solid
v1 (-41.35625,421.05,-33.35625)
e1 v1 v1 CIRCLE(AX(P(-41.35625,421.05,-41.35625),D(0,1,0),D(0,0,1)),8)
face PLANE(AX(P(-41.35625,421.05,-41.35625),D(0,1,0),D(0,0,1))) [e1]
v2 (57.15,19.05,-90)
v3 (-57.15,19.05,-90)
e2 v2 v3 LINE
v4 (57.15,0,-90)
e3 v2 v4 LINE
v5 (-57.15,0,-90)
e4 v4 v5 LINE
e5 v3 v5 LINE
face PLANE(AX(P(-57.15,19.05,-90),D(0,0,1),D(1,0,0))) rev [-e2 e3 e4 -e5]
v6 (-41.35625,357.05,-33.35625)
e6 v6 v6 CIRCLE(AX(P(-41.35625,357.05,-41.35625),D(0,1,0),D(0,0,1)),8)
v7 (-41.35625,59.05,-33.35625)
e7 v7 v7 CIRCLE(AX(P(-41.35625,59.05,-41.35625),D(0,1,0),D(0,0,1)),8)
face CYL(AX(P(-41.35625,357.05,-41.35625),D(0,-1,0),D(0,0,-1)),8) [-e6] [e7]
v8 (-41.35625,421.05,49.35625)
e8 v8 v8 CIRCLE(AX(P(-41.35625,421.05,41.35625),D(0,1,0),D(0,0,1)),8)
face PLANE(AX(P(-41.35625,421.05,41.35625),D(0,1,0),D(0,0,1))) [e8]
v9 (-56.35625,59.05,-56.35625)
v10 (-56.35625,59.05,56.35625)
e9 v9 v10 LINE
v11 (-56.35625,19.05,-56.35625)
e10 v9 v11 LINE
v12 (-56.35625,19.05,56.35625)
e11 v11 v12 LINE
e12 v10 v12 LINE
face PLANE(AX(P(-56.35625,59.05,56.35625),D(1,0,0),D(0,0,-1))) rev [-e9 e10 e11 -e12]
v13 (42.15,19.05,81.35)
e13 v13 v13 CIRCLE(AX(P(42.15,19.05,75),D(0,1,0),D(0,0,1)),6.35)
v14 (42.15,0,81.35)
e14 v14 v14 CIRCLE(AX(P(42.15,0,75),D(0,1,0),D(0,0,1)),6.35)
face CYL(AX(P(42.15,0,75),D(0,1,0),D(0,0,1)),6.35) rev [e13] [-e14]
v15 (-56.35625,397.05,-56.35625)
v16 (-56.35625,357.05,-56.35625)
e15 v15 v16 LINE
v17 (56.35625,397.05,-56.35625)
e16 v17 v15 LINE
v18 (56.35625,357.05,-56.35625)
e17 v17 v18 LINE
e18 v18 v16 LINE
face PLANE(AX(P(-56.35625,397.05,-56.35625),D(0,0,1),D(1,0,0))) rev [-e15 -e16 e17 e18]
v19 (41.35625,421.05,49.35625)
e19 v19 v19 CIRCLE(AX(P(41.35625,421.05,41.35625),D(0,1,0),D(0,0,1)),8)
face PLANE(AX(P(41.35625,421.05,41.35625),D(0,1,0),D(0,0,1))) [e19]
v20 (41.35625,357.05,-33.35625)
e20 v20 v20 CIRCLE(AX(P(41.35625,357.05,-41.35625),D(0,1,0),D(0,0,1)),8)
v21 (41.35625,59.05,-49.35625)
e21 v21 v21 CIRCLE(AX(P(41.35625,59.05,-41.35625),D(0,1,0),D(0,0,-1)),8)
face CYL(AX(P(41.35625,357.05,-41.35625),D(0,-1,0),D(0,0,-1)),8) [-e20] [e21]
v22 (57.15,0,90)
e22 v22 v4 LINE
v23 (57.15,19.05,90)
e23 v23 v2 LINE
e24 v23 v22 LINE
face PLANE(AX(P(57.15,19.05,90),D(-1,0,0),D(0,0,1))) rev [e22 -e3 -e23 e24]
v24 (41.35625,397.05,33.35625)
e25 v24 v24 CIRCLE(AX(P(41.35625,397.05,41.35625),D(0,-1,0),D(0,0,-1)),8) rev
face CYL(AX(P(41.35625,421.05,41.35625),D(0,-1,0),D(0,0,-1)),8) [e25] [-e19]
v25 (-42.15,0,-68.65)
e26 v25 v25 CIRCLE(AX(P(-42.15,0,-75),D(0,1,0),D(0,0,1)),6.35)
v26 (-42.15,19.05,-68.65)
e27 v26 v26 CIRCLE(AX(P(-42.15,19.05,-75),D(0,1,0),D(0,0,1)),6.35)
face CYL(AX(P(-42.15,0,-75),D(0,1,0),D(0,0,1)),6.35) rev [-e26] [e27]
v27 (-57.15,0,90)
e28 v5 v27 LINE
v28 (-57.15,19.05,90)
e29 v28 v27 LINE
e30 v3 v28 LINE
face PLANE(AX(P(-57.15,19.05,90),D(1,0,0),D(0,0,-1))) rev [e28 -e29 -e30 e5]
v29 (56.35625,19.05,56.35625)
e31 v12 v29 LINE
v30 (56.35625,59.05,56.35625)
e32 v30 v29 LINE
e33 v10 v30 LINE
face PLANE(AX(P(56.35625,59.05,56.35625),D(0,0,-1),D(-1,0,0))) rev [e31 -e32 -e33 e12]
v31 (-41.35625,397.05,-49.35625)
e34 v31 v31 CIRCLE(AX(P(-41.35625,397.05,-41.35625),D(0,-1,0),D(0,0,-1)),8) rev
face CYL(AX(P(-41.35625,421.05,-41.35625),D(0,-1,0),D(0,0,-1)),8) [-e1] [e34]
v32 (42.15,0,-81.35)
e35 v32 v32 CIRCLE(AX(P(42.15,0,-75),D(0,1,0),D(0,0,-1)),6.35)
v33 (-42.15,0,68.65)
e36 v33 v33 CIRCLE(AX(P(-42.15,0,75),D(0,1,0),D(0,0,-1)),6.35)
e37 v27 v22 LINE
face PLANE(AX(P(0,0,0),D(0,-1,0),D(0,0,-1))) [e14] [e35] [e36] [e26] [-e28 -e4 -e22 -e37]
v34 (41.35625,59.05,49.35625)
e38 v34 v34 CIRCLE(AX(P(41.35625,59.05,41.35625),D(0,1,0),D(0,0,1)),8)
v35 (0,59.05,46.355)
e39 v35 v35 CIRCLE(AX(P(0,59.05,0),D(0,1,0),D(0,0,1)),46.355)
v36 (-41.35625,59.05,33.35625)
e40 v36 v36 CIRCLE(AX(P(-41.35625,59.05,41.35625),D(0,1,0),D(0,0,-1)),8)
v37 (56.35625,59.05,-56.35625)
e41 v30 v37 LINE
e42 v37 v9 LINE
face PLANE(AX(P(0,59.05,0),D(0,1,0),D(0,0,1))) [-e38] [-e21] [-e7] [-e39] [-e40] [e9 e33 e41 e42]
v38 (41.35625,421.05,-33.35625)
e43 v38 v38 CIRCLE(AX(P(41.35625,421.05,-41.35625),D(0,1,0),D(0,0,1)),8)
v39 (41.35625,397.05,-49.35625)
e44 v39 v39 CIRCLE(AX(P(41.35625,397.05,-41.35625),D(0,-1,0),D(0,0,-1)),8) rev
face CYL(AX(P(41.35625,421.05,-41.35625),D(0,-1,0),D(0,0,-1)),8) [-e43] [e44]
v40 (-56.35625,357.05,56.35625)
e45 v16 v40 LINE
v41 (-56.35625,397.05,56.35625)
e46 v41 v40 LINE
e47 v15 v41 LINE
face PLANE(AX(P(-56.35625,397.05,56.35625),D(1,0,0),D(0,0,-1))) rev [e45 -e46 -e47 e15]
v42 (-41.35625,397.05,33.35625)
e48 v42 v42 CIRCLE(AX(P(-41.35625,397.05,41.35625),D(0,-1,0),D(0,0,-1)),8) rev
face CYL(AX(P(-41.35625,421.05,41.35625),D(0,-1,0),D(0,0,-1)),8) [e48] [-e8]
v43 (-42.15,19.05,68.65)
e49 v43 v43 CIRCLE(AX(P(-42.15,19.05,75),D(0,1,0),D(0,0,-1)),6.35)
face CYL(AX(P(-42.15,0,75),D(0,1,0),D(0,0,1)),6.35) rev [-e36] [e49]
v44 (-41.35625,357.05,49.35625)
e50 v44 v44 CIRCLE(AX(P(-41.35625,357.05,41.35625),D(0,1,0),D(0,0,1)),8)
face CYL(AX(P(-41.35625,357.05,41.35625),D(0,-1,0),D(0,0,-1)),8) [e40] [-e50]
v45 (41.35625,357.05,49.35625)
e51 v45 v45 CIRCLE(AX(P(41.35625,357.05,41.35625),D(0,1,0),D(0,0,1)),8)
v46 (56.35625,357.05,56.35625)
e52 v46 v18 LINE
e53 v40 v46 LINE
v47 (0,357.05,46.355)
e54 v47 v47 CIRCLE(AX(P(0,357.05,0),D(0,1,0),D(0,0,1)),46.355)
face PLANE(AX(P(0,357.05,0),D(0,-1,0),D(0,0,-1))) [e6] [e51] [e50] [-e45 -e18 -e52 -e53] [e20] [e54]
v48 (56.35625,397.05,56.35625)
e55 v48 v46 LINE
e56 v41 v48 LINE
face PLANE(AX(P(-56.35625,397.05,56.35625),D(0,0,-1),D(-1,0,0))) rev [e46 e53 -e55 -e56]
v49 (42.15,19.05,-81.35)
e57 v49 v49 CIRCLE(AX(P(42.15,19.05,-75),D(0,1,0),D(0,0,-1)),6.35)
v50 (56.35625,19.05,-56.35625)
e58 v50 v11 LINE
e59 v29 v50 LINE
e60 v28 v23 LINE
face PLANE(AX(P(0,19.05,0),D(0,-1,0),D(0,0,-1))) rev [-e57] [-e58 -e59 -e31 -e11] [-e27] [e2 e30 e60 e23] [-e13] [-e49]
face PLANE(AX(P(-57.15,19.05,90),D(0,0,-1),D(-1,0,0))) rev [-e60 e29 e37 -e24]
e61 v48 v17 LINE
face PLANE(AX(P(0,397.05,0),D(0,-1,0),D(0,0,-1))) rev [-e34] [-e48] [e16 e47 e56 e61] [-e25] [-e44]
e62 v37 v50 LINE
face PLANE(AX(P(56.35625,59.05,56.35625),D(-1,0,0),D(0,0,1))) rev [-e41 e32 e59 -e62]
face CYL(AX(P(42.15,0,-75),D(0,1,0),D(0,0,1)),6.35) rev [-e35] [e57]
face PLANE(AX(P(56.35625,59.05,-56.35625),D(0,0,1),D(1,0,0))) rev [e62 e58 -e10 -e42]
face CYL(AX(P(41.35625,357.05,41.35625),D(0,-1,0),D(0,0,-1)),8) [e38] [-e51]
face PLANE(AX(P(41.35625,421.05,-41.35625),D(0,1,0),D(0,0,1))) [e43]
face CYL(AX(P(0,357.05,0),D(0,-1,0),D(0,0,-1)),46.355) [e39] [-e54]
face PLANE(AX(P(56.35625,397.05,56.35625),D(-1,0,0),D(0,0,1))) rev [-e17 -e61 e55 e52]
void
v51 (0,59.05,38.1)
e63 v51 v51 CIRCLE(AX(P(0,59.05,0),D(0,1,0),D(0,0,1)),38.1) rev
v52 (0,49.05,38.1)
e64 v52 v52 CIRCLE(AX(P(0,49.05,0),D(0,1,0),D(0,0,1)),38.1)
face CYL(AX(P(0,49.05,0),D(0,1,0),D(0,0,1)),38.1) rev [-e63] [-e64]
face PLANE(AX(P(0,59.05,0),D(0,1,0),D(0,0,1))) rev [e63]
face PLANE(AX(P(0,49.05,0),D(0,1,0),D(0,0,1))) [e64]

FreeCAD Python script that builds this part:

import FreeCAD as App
import Part
import Sketcher

V = App.Vector

doc = App.newDocument("Part")
params = doc.addObject("Spreadsheet::Sheet", "Params")
for row, (alias, value) in enumerate([
    ("sketch1_height", "180 mm"),
    ("sketch1_width", "114.3 mm"),
    ("pad1_length", "19.05 mm"),
    ("sketch2_diameter", "12.7 mm"),
    ("pocket1_length", "19.05 mm"),
    ("pad2_length", "40 mm"),
    ("sketch4_diameter", "16 mm"),
    ("pocket2_length", "40 mm"),
    ("sketch5_diameter", "16 mm"),
    ("pad3_length", "338 mm"),
    ("sketch6_diameter", "76.2 mm"),
    ("pocket3_length", "10 mm"),
    ("sketch7_diameter", "92.71 mm"),
    ("pad4_length", "298 mm"),
    ("pad5_length", "40 mm"),
    ("sketch9_diameter", "16 mm"),
    ("pad6_length", "24 mm"),
], start=1):
    params.set(f"A{row}", alias)
    params.set(f"B{row}", "=" + value)
    params.setAlias(f"B{row}", alias)

body = doc.addObject("PartDesign::Body", "Body")

# Sketch on XZ plane
sketch1 = body.newObject("Sketcher::SketchObject", "Sketch")
sketch1.AttachmentSupport = (doc.getObject("XZ_Plane"), [""])
sketch1.MapMode = "FlatFace"
sketch1.addGeometry([
    Part.LineSegment(V(-57, -90, 0), V(-57, 90, 0)),
    Part.LineSegment(V(-57, 90, 0), V(57, 90, 0)),
    Part.LineSegment(V(57, 90, 0), V(57, -90, 0)),
    Part.LineSegment(V(57, -90, 0), V(-57, -90, 0)),
], False)
sketch1.addConstraint([
    Sketcher.Constraint("Coincident", 0, 2, 1, 1),
    Sketcher.Constraint("Coincident", 1, 2, 2, 1),
    Sketcher.Constraint("Coincident", 2, 2, 3, 1),
    Sketcher.Constraint("Coincident", 3, 2, 0, 1),
    Sketcher.Constraint("Vertical", 0),
    Sketcher.Constraint("Horizontal", 1),
    Sketcher.Constraint("Vertical", 2),
    Sketcher.Constraint("Horizontal", 3),
    Sketcher.Constraint("Symmetric", 0, 2, 2, 2, -1, 1),
    Sketcher.Constraint("DistanceY", 0, 1, 0, 2, 180.0),
    Sketcher.Constraint("DistanceX", 1, 1, 1, 2, 114.3),
])
sketch1.setExpression("Constraints[9]", "Params.sketch1_height")
sketch1.setExpression("Constraints[10]", "Params.sketch1_width")
pad1 = body.newObject("PartDesign::Pad", "Pad")
pad1.Profile = sketch1
pad1.setExpression("Length", "Params.pad1_length")
pad1.Reversed = True

# Sketch on XZ plane
sketch2 = body.newObject("Sketcher::SketchObject", "Sketch001")
sketch2.AttachmentSupport = (doc.getObject("XZ_Plane"), [""])
sketch2.MapMode = "FlatFace"
sketch2.AttachmentOffset = App.Placement(V(0, 0, -19.05), App.Rotation())
sketch2.addGeometry([
    Part.Circle(V(-42, -75, 0), V(0, 0, 1), 6),
    Part.Circle(V(42, -75, 0), V(0, 0, 1), 6),
    Part.Circle(V(42, 75, 0), V(0, 0, 1), 6),
    Part.Circle(V(-42, 75, 0), V(0, 0, 1), 6),
], False)
sketch2.addConstraint([
    Sketcher.Constraint("Equal", 0, 1),
    Sketcher.Constraint("Equal", 1, 2),
    Sketcher.Constraint("Equal", 2, 3),
    Sketcher.Constraint("Symmetric", 0, 3, 2, 3, -1, 1),
    Sketcher.Constraint("Symmetric", 1, 3, 3, 3, -1, 1),
    Sketcher.Constraint("Symmetric", 0, 3, 1, 3, -2),
    Sketcher.Constraint("Diameter", 0, 12.7),
    Sketcher.Constraint("DistanceY", 0, 3, -1, 1, 75.0),
    Sketcher.Constraint("DistanceX", 0, 3, 1, 3, 84.3),
])
sketch2.setExpression("Constraints[6]", "Params.sketch2_diameter")
pocket1 = body.newObject("PartDesign::Pocket", "Pocket")
pocket1.Profile = sketch2
pocket1.setExpression("Length", "Params.pocket1_length")
pocket1.Reversed = True

# Sketch on XZ plane
sketch3 = body.newObject("Sketcher::SketchObject", "Sketch002")
sketch3.AttachmentSupport = (doc.getObject("XZ_Plane"), [""])
sketch3.MapMode = "FlatFace"
sketch3.AttachmentOffset = App.Placement(V(0, 0, -19.05), App.Rotation())
sketch3.addGeometry([
    Part.LineSegment(V(-56, -56, 0), V(-56, 56, 0)),
    Part.LineSegment(V(-56, 56, 0), V(56, 56, 0)),
    Part.LineSegment(V(56, 56, 0), V(56, -56, 0)),
    Part.LineSegment(V(56, -56, 0), V(-56, -56, 0)),
], False)
sketch3.addConstraint([
    Sketcher.Constraint("Coincident", 0, 2, 1, 1),
    Sketcher.Constraint("Coincident", 1, 2, 2, 1),
    Sketcher.Constraint("Coincident", 2, 2, 3, 1),
    Sketcher.Constraint("Coincident", 3, 2, 0, 1),
    Sketcher.Constraint("Vertical", 0),
    Sketcher.Constraint("Horizontal", 1),
    Sketcher.Constraint("Vertical", 2),
    Sketcher.Constraint("Horizontal", 3),
    Sketcher.Constraint("Symmetric", 0, 2, 2, 2, -1, 1),
    Sketcher.Constraint("Equal", 3, 0),
    Sketcher.Constraint("DistanceX", 1, 1, 1, 2, 112.7125),
])
pad2 = body.newObject("PartDesign::Pad", "Pad001")
pad2.Profile = sketch3
pad2.setExpression("Length", "Params.pad2_length")
pad2.Reversed = True

# Sketch on XZ plane
sketch4 = body.newObject("Sketcher::SketchObject", "Sketch003")
sketch4.AttachmentSupport = (doc.getObject("XZ_Plane"), [""])
sketch4.MapMode = "FlatFace"
sketch4.AttachmentOffset = App.Placement(V(0, 0, -59.05), App.Rotation())
sketch4.addGeometry([
    Part.Circle(V(-41, -41, 0), V(0, 0, 1), 8),
    Part.Circle(V(41, -41, 0), V(0, 0, 1), 8),
    Part.Circle(V(41, 41, 0), V(0, 0, 1), 8),
    Part.Circle(V(-41, 41, 0), V(0, 0, 1), 8),
], False)
sketch4.addConstraint([
    Sketcher.Constraint("Equal", 0, 1),
    Sketcher.Constraint("Equal", 1, 2),
    Sketcher.Constraint("Equal", 2, 3),
    Sketcher.Constraint("Symmetric", 0, 3, 2, 3, -1, 1),
    Sketcher.Constraint("Symmetric", 1, 3, 3, 3, -1, 1),
    Sketcher.Constraint("Symmetric", 0, 3, 1, 3, -2),
    Sketcher.Constraint("Diameter", 0, 16.0),
    Sketcher.Constraint("DistanceX", 0, 3, 1, 3, 82.7125),
    Sketcher.Constraint("DistanceY", 1, 3, 2, 3, 82.7125),
])
sketch4.setExpression("Constraints[6]", "Params.sketch4_diameter")
pocket2 = body.newObject("PartDesign::Pocket", "Pocket001")
pocket2.Profile = sketch4
pocket2.setExpression("Length", "Params.pocket2_length")
pocket2.Reversed = True

# Sketch on XZ plane
sketch5 = body.newObject("Sketcher::SketchObject", "Sketch004")
sketch5.AttachmentSupport = (doc.getObject("XZ_Plane"), [""])
sketch5.MapMode = "FlatFace"
sketch5.AttachmentOffset = App.Placement(V(0, 0, -19.05), App.Rotation())
sketch5.addGeometry([
    Part.Circle(V(-41, -41, 0), V(0, 0, 1), 8),
    Part.Circle(V(41, -41, 0), V(0, 0, 1), 8),
    Part.Circle(V(41, 41, 0), V(0, 0, 1), 8),
    Part.Circle(V(-41, 41, 0), V(0, 0, 1), 8),
], False)
sketch5.addConstraint([
    Sketcher.Constraint("Equal", 0, 1),
    Sketcher.Constraint("Equal", 1, 2),
    Sketcher.Constraint("Equal", 2, 3),
    Sketcher.Constraint("Symmetric", 0, 3, 2, 3, -1, 1),
    Sketcher.Constraint("Symmetric", 1, 3, 3, 3, -1, 1),
    Sketcher.Constraint("Symmetric", 0, 3, 1, 3, -2),
    Sketcher.Constraint("Diameter", 0, 16.0),
    Sketcher.Constraint("DistanceX", 0, 3, 1, 3, 82.7125),
    Sketcher.Constraint("DistanceY", 1, 3, 2, 3, 82.7125),
])
sketch5.setExpression("Constraints[6]", "Params.sketch5_diameter")
pad3 = body.newObject("PartDesign::Pad", "Pad002")
pad3.Profile = sketch5
pad3.setExpression("Length", "Params.pad3_length")
pad3.Reversed = True

# Sketch on XZ plane
sketch6 = body.newObject("Sketcher::SketchObject", "Sketch005")
sketch6.AttachmentSupport = (doc.getObject("XZ_Plane"), [""])
sketch6.MapMode = "FlatFace"
sketch6.AttachmentOffset = App.Placement(V(0, 0, -59.05), App.Rotation())
sketch6.addGeometry(Part.Circle(V(0, 0, 0), V(0, 0, 1), 38), False)
sketch6.addConstraint([
    Sketcher.Constraint("Coincident", 0, 3, -1, 1),
    Sketcher.Constraint("Diameter", 0, 76.2),
])
sketch6.setExpression("Constraints[1]", "Params.sketch6_diameter")
pocket3 = body.newObject("PartDesign::Pocket", "Pocket002")
pocket3.Profile = sketch6
pocket3.setExpression("Length", "Params.pocket3_length")
pocket3.Reversed = True

# Sketch on XZ plane
sketch7 = body.newObject("Sketcher::SketchObject", "Sketch006")
sketch7.AttachmentSupport = (doc.getObject("XZ_Plane"), [""])
sketch7.MapMode = "FlatFace"
sketch7.AttachmentOffset = App.Placement(V(0, 0, -59.05), App.Rotation())
sketch7.addGeometry(Part.Circle(V(0, 0, 0), V(0, 0, 1), 46), False)
sketch7.addConstraint([
    Sketcher.Constraint("Coincident", 0, 3, -1, 1),
    Sketcher.Constraint("Diameter", 0, 92.71),
])
sketch7.setExpression("Constraints[1]", "Params.sketch7_diameter")
pad4 = body.newObject("PartDesign::Pad", "Pad003")
pad4.Profile = sketch7
pad4.setExpression("Length", "Params.pad4_length")
pad4.Reversed = True

# Sketch on XZ plane
sketch8 = body.newObject("Sketcher::SketchObject", "Sketch007")
sketch8.AttachmentSupport = (doc.getObject("XZ_Plane"), [""])
sketch8.MapMode = "FlatFace"
sketch8.AttachmentOffset = App.Placement(V(0, 0, -357.05), App.Rotation())
sketch8.addGeometry([
    Part.LineSegment(V(-56, -56, 0), V(-56, 56, 0)),
    Part.LineSegment(V(-56, 56, 0), V(56, 56, 0)),
    Part.LineSegment(V(56, 56, 0), V(56, -56, 0)),
    Part.LineSegment(V(56, -56, 0), V(-56, -56, 0)),
], False)
sketch8.addConstraint([
    Sketcher.Constraint("Coincident", 0, 2, 1, 1),
    Sketcher.Constraint("Coincident", 1, 2, 2, 1),
    Sketcher.Constraint("Coincident", 2, 2, 3, 1),
    Sketcher.Constraint("Coincident", 3, 2, 0, 1),
    Sketcher.Constraint("Vertical", 0),
    Sketcher.Constraint("Horizontal", 1),
    Sketcher.Constraint("Vertical", 2),
    Sketcher.Constraint("Horizontal", 3),
    Sketcher.Constraint("Symmetric", 0, 2, 2, 2, -1, 1),
    Sketcher.Constraint("Equal", 3, 0),
    Sketcher.Constraint("DistanceX", 1, 1, 1, 2, 112.7125),
])
pad5 = body.newObject("PartDesign::Pad", "Pad004")
pad5.Profile = sketch8
pad5.setExpression("Length", "Params.pad5_length")
pad5.Reversed = True

# Sketch on XZ plane
sketch9 = body.newObject("Sketcher::SketchObject", "Sketch008")
sketch9.AttachmentSupport = (doc.getObject("XZ_Plane"), [""])
sketch9.MapMode = "FlatFace"
sketch9.AttachmentOffset = App.Placement(V(0, 0, -397.05), App.Rotation())
sketch9.addGeometry([
    Part.Circle(V(-41, -41, 0), V(0, 0, 1), 8),
    Part.Circle(V(41, -41, 0), V(0, 0, 1), 8),
    Part.Circle(V(-41, 41, 0), V(0, 0, 1), 8),
    Part.Circle(V(41, 41, 0), V(0, 0, 1), 8),
], False)
sketch9.addConstraint([
    Sketcher.Constraint("Equal", 0, 1),
    Sketcher.Constraint("Equal", 1, 2),
    Sketcher.Constraint("Equal", 2, 3),
    Sketcher.Constraint("Symmetric", 1, 3, 2, 3, -1, 1),
    Sketcher.Constraint("Symmetric", 0, 3, 3, 3, -1, 1),
    Sketcher.Constraint("Symmetric", 0, 3, 1, 3, -2),
    Sketcher.Constraint("Diameter", 0, 16.0),
    Sketcher.Constraint("DistanceX", 0, 3, 1, 3, 82.7125),
    Sketcher.Constraint("DistanceY", 0, 3, 2, 3, 82.7125),
])
sketch9.setExpression("Constraints[6]", "Params.sketch9_diameter")
pad6 = body.newObject("PartDesign::Pad", "Pad005")
pad6.Profile = sketch9
pad6.setExpression("Length", "Params.pad6_length")
pad6.Reversed = True

doc.recompute()
